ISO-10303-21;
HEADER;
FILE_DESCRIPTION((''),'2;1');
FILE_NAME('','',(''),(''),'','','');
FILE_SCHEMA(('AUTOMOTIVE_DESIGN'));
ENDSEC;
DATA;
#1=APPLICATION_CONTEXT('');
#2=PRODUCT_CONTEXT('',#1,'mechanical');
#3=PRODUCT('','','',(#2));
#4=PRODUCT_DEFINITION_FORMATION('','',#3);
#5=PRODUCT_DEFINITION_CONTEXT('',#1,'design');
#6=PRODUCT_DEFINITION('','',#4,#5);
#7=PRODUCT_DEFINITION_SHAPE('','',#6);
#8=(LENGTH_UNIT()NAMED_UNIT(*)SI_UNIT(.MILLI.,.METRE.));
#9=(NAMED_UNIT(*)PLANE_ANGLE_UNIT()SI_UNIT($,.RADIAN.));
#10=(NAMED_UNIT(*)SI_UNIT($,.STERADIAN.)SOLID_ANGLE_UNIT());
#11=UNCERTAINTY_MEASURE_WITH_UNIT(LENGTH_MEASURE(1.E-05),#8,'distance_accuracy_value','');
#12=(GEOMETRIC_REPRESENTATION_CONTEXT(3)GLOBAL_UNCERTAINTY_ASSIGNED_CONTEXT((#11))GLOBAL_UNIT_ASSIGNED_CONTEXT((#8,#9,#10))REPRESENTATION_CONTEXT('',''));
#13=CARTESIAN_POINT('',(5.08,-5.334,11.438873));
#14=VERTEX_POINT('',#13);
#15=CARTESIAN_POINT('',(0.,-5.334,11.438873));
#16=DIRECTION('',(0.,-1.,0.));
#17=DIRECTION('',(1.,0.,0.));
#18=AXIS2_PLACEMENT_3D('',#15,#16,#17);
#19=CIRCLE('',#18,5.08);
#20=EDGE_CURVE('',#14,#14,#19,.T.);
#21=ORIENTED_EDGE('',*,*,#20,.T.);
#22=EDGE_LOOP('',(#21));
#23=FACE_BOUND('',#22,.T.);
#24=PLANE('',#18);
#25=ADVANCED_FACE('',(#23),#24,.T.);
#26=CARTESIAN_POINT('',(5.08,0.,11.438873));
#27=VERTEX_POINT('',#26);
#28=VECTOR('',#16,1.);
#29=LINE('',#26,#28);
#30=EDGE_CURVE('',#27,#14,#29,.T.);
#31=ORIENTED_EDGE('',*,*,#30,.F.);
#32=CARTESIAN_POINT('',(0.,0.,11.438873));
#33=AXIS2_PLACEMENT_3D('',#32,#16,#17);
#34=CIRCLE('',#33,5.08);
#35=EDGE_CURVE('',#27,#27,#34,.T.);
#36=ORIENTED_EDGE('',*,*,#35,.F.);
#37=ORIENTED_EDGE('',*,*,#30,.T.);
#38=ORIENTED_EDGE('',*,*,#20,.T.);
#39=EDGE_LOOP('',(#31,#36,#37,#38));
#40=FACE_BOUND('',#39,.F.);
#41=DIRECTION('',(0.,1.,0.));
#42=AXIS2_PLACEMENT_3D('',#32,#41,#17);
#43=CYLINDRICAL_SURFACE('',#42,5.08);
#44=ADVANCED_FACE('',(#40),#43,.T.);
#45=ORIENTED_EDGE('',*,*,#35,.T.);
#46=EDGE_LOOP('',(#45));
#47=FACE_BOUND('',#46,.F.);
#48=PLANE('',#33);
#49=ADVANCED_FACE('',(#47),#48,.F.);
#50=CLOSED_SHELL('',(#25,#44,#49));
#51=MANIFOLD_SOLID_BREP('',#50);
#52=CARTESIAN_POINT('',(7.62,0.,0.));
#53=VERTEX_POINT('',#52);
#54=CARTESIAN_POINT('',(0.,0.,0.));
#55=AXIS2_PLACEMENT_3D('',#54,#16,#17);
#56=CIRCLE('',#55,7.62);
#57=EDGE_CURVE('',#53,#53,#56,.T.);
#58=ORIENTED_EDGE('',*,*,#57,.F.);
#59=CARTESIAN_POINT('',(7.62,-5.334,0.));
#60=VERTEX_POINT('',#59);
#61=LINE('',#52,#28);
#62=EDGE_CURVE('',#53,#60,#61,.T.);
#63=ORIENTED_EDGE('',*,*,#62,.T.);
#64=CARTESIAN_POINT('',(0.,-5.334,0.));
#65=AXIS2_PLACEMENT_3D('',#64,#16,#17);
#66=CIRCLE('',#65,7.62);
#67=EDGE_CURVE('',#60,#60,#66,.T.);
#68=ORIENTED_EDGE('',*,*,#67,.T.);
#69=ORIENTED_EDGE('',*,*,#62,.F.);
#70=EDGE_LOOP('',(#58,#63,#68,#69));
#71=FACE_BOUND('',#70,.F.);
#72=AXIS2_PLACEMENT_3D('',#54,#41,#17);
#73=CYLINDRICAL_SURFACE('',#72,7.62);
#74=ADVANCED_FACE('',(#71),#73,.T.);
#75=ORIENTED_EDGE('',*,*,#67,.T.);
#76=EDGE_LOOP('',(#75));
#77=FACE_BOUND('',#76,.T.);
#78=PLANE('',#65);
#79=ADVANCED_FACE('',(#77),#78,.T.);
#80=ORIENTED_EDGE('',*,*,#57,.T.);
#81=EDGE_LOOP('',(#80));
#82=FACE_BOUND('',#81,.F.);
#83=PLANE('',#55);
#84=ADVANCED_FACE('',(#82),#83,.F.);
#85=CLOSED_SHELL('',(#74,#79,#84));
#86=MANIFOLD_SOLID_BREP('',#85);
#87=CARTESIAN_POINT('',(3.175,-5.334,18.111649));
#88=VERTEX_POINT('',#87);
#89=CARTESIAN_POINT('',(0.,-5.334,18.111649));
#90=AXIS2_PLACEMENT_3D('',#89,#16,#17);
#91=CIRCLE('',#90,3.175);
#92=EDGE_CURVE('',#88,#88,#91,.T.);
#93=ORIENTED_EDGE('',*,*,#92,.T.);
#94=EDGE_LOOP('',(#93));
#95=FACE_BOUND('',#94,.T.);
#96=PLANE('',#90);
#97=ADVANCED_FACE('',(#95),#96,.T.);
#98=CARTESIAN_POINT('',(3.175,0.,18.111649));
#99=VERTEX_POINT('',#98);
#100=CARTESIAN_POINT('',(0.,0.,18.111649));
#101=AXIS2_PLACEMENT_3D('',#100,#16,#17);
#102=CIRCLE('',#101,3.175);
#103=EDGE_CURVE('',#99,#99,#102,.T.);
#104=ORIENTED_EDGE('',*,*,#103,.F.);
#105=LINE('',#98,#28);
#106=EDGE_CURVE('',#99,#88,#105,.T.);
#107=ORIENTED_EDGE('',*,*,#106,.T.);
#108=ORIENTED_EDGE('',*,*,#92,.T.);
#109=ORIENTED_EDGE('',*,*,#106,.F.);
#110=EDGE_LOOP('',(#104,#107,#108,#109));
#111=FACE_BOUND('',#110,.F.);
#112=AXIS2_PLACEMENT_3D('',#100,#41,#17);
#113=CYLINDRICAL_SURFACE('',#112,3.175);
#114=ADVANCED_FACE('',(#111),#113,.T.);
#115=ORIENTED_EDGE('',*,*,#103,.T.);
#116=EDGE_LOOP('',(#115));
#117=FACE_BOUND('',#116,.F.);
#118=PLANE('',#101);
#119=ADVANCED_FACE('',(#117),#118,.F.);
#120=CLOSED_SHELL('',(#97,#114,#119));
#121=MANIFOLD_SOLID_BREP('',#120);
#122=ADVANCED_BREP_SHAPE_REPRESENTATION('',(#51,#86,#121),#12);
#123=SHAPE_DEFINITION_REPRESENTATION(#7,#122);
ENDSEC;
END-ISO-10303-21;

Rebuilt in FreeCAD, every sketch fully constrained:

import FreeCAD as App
import Part
import Sketcher
from FreeCAD import Vector
Q = App.Units.Quantity

doc = App.newDocument("Part")
body = doc.addObject("PartDesign::Body", "Body")

# Sketch on XZ plane
sketch1 = doc.addObject("Sketcher::SketchObject", "Sketch")
body.addObject(sketch1)
sketch1.AttachmentSupport = (doc.XZ_Plane, [""])
sketch1.MapMode = "FlatFace"
sketch1.addGeometry(Part.Circle(Vector(0, 18.1, 0), Vector(0, 0, 1), 3.2), False)
sketch1.addConstraint([
    Sketcher.Constraint("PointOnObject", 0, 3, -2),
    Sketcher.Constraint("Diameter", 0, Q("0.25 in")),
    Sketcher.Constraint("DistanceY", -1, 1, 0, 3, 18.111649),
])
pad1 = doc.addObject("PartDesign::Pad", "Pad")
body.addObject(pad1)
pad1.Profile = sketch1
pad1.Length = Q("0.21 in")
body2 = doc.addObject("PartDesign::Body", "Body001")

# Sketch on XZ plane
sketch2 = doc.addObject("Sketcher::SketchObject", "Sketch001")
body2.addObject(sketch2)
sketch2.AttachmentSupport = (doc.getObject("XZ_Plane001"), [""])
sketch2.MapMode = "FlatFace"
sketch2.addGeometry(Part.Circle(Vector(0, 11, 0), Vector(0, 0, 1), 5), False)
sketch2.addConstraint([
    Sketcher.Constraint("PointOnObject", 0, 3, -2),
    Sketcher.Constraint("Diameter", 0, Q("0.4 in")),
    Sketcher.Constraint("DistanceY", -1, 1, 0, 3, 11.438873),
])
pad2 = doc.addObject("PartDesign::Pad", "Pad001")
body2.addObject(pad2)
pad2.Profile = sketch2
pad2.Length = Q("0.21 in")
body3 = doc.addObject("PartDesign::Body", "Body002")

# Sketch on XZ plane
sketch3 = doc.addObject("Sketcher::SketchObject", "Sketch002")
body3.addObject(sketch3)
sketch3.AttachmentSupport = (doc.getObject("XZ_Plane002"), [""])
sketch3.MapMode = "FlatFace"
sketch3.addGeometry(Part.Circle(Vector(0, 0, 0), Vector(0, 0, 1), 8), False)
sketch3.addConstraint([
    Sketcher.Constraint("Coincident", 0, 3, -1, 1),
    Sketcher.Constraint("Diameter", 0, Q("0.6 in")),
])
pad3 = doc.addObject("PartDesign::Pad", "Pad002")
body3.addObject(pad3)
pad3.Profile = sketch3
pad3.Length = Q("0.21 in")

doc.recompute()
